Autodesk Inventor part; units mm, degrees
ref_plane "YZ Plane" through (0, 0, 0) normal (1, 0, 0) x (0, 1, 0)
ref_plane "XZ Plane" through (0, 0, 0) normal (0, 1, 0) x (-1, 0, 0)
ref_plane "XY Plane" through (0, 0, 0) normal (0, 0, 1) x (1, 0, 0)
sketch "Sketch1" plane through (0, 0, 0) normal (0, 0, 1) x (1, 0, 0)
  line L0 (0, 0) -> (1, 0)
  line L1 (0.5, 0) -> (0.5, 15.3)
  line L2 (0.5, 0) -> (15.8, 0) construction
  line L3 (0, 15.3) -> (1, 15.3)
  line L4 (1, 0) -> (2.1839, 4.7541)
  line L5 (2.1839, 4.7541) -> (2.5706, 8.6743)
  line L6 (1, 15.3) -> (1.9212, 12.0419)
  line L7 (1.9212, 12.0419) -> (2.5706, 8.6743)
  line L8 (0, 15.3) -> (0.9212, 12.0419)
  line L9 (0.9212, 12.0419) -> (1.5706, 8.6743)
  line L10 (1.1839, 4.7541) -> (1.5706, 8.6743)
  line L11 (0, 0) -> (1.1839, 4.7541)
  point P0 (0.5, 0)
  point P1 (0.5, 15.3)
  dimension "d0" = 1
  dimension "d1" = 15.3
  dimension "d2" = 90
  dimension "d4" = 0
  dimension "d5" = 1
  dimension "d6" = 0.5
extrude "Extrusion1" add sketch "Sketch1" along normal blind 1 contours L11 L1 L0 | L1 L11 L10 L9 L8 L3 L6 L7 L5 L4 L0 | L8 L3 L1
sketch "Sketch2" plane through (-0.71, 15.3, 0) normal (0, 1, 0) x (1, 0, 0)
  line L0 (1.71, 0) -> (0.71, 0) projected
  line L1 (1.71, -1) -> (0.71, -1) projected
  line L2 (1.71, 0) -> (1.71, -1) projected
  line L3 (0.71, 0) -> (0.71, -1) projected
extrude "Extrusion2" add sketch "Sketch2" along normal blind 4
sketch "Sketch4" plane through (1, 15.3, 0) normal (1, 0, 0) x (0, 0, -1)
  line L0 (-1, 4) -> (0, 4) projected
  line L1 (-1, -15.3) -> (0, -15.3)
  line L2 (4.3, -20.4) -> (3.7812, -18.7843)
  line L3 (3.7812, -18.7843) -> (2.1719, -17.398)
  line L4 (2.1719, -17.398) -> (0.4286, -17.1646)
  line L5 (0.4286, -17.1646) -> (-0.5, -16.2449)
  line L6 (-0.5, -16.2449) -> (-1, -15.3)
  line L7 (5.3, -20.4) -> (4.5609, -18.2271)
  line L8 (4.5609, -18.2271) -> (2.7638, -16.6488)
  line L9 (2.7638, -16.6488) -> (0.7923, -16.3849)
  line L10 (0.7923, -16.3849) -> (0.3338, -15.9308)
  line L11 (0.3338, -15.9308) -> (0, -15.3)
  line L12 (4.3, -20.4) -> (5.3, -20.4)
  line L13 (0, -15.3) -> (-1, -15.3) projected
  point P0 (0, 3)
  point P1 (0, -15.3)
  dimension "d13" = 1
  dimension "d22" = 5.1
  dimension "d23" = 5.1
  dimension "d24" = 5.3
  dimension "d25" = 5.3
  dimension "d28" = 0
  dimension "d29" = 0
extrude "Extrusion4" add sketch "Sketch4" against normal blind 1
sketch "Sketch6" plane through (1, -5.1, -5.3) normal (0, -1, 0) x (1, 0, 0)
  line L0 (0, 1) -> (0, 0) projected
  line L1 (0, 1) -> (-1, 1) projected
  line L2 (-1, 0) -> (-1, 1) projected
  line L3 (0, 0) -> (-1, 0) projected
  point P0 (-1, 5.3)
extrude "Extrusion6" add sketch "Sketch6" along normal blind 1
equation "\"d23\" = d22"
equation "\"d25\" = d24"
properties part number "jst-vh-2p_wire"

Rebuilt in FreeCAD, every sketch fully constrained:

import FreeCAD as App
import Part
import Sketcher

V = App.Vector
Q = App.Units.Quantity


def add_polygon(sketch, points):
    """Adds a closed chain of lines whose ends are joined by coincident constraints."""
    first, n = sketch.GeometryCount, len(points)
    for a, b in zip(points, points[1:] + points[:1]):
        sketch.addGeometry(Part.LineSegment(App.Vector(*a, 0), App.Vector(*b, 0)), False)
    for i in range(n):
        sketch.addConstraint(Sketcher.Constraint("Coincident", first + i, 2, first + (i + 1) % n, 1))

doc = App.newDocument("Part")
body = doc.addObject("PartDesign::Body", "Body")

# Sketch on XY plane
sketch1 = doc.addObject("Sketcher::SketchObject", "Sketch")
body.addObject(sketch1)
sketch1.AttachmentSupport = (doc.XY_Plane, [""])
sketch1.MapMode = "FlatFace"
add_polygon(sketch1, [(0, 0), (1, 0), (2.2, 4.8), (2.6, 8.7), (1.9, 12), (1, 15.3), (0, 15.3), (0.9, 12), (1.6, 8.7), (1.2, 4.8)])  # lines 0-9
sketch1.addConstraint(Sketcher.Constraint("Horizontal", 0))
sketch1.addConstraint(Sketcher.Constraint("Horizontal", 5))
sketch1.addConstraint(Sketcher.Constraint("Coincident", 9, 2, -1, 1))
sketch1.addConstraint(Sketcher.Constraint("PointOnObject", 5, 2, -2))
sketch1.addConstraint(Sketcher.Constraint("Parallel", 4, 6))
sketch1.addConstraint(Sketcher.Constraint("Parallel", 3, 7))
sketch1.addConstraint(Sketcher.Constraint("Parallel", 2, 8))
sketch1.addConstraint(Sketcher.Constraint("Parallel", 1, 9))
sketch1.addConstraint(Sketcher.Constraint("Horizontal", 3, 2, 6, 2))
sketch1.addConstraint(Sketcher.Constraint("Horizontal", 2, 2, 7, 2))
sketch1.addConstraint(Sketcher.Constraint("Horizontal", 1, 2, 8, 2))
sketch1.addConstraint(Sketcher.Constraint("DistanceX", 0, 1, 0, 2, Q("1 mm")))
sketch1.addConstraint(Sketcher.Constraint("DistanceY", -1, 1, 4, 2, Q("15.3 mm")))
sketch1.addConstraint(Sketcher.Constraint("DistanceX", -1, 1, 1, 2, Q("2.184 mm")))
sketch1.addConstraint(Sketcher.Constraint("DistanceY", -1, 1, 1, 2, Q("4.754 mm")))
sketch1.addConstraint(Sketcher.Constraint("DistanceY", -1, 1, 3, 2, Q("12.042 mm")))
sketch1.addConstraint(Sketcher.Constraint("Distance", 2, Q("3.9392 mm")))
sketch1.addConstraint(Sketcher.Constraint("Distance", 3, Q("3.4296 mm")))
sketch1.addConstraint(Sketcher.Constraint("Distance", 4, Q("3.3858 mm")))
pad1 = doc.addObject("PartDesign::Pad", "Pad")
body.addObject(pad1)
pad1.Profile = sketch1
pad1.Length = 1

# Sketch on XZ plane
sketch2 = doc.addObject("Sketcher::SketchObject", "Sketch001")
body.addObject(sketch2)
sketch2.AttachmentSupport = (doc.XZ_Plane, [""])
sketch2.MapMode = "FlatFace"
sketch2.AttachmentOffset = App.Placement(V(0, 0, -15.3), App.Rotation())
add_polygon(sketch2, [(1, 1), (1, 0), (0, 0), (0, 1)])  # lines 0-3
sketch2.addConstraint(Sketcher.Constraint("Vertical", 0))
sketch2.addConstraint(Sketcher.Constraint("Horizontal", 1))
sketch2.addConstraint(Sketcher.Constraint("Vertical", 2))
sketch2.addConstraint(Sketcher.Constraint("Horizontal", 3))
sketch2.addConstraint(Sketcher.Constraint("Coincident", 1, 2, -1, 1))
sketch2.addConstraint(Sketcher.Constraint("Equal", 3, 0))
sketch2.addConstraint(Sketcher.Constraint("DistanceX", 1, 2, 1, 1, Q("1 mm")))
pad2 = doc.addObject("PartDesign::Pad", "Pad001")
body.addObject(pad2)
pad2.Profile = sketch2
pad2.Length = 4
pad2.Reversed = True

# Sketch on YZ plane
sketch3 = doc.addObject("Sketcher::SketchObject", "Sketch002")
body.addObject(sketch3)
sketch3.AttachmentSupport = (doc.YZ_Plane, [""])
sketch3.MapMode = "FlatFace"
sketch3.AttachmentOffset = App.Placement(V(0, 0, 1), App.Rotation())
add_polygon(sketch3, [(0, 0), (0, 1), (-0.9, 0.5), (-1.9, -0.4), (-2.1, -2.2), (-3.5, -3.8), (-5.1, -4.3), (-5.1, -5.3), (-2.9, -4.6), (-1.3, -2.8), (-1.1, -0.8), (-0.6, -0.3)])  # lines 0-11
sketch3.addConstraint(Sketcher.Constraint("Vertical", 0))
sketch3.addConstraint(Sketcher.Constraint("Vertical", 6))
sketch3.addConstraint(Sketcher.Constraint("Coincident", 11, 2, -1, 1))
sketch3.addConstraint(Sketcher.Constraint("Parallel", 3, 9))
sketch3.addConstraint(Sketcher.Constraint("Parallel", 2, 10))
sketch3.addConstraint(Sketcher.Constraint("Parallel", 1, 11))
sketch3.addConstraint(Sketcher.Constraint("Equal", 0, 6))
sketch3.addConstraint(Sketcher.Constraint("DistanceY", 0, 1, 0, 2, Q("1 mm")))
sketch3.addConstraint(Sketcher.Constraint("DistanceX", 5, 2, -1, 1, Q("5.1 mm")))
sketch3.addConstraint(Sketcher.Constraint("DistanceY", 6, 2, -1, 1, Q("5.3 mm")))
sketch3.addConstraint(Sketcher.Constraint("DistanceY", -1, 1, 1, 2, Q("0.5 mm")))
sketch3.addConstraint(Sketcher.Constraint("Angle", 8, Q("48.7088 deg")))
sketch3.addConstraint(Sketcher.Constraint("DistanceX", 9, 2, 1, 2, Q("0.14 mm")))
sketch3.addConstraint(Sketcher.Constraint("Distance", 1, Q("1.069 mm")))
sketch3.addConstraint(Sketcher.Constraint("Distance", 2, Q("1.307 mm")))
sketch3.addConstraint(Sketcher.Constraint("Distance", 4, Q("2.124 mm")))
sketch3.addConstraint(Sketcher.Constraint("Distance", 5, Q("1.697 mm")))
sketch3.addConstraint(Sketcher.Constraint("Distance", 9, Q("1.989 mm")))
sketch3.addConstraint(Sketcher.Constraint("DistanceX", 3, 2, -1, 1, Q("2.098 mm")))
sketch3.addConstraint(Sketcher.Constraint("DistanceY", 3, 2, -1, 1, Q("2.172 mm")))
sketch3.addConstraint(Sketcher.Constraint("DistanceX", 7, 2, -1, 1, Q("2.927 mm")))
sketch3.addConstraint(Sketcher.Constraint("DistanceY", 7, 2, -1, 1, Q("4.561 mm")))
sketch3.addConstraint(Sketcher.Constraint("DistanceY", 8, 2, 3, 2, Q("0.592 mm")))
pad3 = doc.addObject("PartDesign::Pad", "Pad002")
body.addObject(pad3)
pad3.Profile = sketch3
pad3.Length = 1
pad3.Reversed = True

# Sketch on XZ plane
sketch4 = doc.addObject("Sketcher::SketchObject", "Sketch003")
body.addObject(sketch4)
sketch4.AttachmentSupport = (doc.XZ_Plane, [""])
sketch4.MapMode = "FlatFace"
sketch4.AttachmentOffset = App.Placement(V(0, 0, 5.1), App.Rotation())
add_polygon(sketch4, [(1, -5.3), (1, -4.3), (0, -4.3), (0, -5.3)])  # lines 0-3
sketch4.addConstraint(Sketcher.Constraint("Vertical", 0))
sketch4.addConstraint(Sketcher.Constraint("Horizontal", 1))
sketch4.addConstraint(Sketcher.Constraint("Vertical", 2))
sketch4.addConstraint(Sketcher.Constraint("Horizontal", 3))
sketch4.addConstraint(Sketcher.Constraint("PointOnObject", 1, 2, -2))
sketch4.addConstraint(Sketcher.Constraint("Equal", 3, 0))
sketch4.addConstraint(Sketcher.Constraint("DistanceX", 1, 2, 1, 1, Q("1 mm")))
sketch4.addConstraint(Sketcher.Constraint("DistanceY", 0, 2, -1, 1, Q("4.3 mm")))
pad4 = doc.addObject("PartDesign::Pad", "Pad003")
body.addObject(pad4)
pad4.Profile = sketch4
pad4.Length = 1

doc.recompute()
